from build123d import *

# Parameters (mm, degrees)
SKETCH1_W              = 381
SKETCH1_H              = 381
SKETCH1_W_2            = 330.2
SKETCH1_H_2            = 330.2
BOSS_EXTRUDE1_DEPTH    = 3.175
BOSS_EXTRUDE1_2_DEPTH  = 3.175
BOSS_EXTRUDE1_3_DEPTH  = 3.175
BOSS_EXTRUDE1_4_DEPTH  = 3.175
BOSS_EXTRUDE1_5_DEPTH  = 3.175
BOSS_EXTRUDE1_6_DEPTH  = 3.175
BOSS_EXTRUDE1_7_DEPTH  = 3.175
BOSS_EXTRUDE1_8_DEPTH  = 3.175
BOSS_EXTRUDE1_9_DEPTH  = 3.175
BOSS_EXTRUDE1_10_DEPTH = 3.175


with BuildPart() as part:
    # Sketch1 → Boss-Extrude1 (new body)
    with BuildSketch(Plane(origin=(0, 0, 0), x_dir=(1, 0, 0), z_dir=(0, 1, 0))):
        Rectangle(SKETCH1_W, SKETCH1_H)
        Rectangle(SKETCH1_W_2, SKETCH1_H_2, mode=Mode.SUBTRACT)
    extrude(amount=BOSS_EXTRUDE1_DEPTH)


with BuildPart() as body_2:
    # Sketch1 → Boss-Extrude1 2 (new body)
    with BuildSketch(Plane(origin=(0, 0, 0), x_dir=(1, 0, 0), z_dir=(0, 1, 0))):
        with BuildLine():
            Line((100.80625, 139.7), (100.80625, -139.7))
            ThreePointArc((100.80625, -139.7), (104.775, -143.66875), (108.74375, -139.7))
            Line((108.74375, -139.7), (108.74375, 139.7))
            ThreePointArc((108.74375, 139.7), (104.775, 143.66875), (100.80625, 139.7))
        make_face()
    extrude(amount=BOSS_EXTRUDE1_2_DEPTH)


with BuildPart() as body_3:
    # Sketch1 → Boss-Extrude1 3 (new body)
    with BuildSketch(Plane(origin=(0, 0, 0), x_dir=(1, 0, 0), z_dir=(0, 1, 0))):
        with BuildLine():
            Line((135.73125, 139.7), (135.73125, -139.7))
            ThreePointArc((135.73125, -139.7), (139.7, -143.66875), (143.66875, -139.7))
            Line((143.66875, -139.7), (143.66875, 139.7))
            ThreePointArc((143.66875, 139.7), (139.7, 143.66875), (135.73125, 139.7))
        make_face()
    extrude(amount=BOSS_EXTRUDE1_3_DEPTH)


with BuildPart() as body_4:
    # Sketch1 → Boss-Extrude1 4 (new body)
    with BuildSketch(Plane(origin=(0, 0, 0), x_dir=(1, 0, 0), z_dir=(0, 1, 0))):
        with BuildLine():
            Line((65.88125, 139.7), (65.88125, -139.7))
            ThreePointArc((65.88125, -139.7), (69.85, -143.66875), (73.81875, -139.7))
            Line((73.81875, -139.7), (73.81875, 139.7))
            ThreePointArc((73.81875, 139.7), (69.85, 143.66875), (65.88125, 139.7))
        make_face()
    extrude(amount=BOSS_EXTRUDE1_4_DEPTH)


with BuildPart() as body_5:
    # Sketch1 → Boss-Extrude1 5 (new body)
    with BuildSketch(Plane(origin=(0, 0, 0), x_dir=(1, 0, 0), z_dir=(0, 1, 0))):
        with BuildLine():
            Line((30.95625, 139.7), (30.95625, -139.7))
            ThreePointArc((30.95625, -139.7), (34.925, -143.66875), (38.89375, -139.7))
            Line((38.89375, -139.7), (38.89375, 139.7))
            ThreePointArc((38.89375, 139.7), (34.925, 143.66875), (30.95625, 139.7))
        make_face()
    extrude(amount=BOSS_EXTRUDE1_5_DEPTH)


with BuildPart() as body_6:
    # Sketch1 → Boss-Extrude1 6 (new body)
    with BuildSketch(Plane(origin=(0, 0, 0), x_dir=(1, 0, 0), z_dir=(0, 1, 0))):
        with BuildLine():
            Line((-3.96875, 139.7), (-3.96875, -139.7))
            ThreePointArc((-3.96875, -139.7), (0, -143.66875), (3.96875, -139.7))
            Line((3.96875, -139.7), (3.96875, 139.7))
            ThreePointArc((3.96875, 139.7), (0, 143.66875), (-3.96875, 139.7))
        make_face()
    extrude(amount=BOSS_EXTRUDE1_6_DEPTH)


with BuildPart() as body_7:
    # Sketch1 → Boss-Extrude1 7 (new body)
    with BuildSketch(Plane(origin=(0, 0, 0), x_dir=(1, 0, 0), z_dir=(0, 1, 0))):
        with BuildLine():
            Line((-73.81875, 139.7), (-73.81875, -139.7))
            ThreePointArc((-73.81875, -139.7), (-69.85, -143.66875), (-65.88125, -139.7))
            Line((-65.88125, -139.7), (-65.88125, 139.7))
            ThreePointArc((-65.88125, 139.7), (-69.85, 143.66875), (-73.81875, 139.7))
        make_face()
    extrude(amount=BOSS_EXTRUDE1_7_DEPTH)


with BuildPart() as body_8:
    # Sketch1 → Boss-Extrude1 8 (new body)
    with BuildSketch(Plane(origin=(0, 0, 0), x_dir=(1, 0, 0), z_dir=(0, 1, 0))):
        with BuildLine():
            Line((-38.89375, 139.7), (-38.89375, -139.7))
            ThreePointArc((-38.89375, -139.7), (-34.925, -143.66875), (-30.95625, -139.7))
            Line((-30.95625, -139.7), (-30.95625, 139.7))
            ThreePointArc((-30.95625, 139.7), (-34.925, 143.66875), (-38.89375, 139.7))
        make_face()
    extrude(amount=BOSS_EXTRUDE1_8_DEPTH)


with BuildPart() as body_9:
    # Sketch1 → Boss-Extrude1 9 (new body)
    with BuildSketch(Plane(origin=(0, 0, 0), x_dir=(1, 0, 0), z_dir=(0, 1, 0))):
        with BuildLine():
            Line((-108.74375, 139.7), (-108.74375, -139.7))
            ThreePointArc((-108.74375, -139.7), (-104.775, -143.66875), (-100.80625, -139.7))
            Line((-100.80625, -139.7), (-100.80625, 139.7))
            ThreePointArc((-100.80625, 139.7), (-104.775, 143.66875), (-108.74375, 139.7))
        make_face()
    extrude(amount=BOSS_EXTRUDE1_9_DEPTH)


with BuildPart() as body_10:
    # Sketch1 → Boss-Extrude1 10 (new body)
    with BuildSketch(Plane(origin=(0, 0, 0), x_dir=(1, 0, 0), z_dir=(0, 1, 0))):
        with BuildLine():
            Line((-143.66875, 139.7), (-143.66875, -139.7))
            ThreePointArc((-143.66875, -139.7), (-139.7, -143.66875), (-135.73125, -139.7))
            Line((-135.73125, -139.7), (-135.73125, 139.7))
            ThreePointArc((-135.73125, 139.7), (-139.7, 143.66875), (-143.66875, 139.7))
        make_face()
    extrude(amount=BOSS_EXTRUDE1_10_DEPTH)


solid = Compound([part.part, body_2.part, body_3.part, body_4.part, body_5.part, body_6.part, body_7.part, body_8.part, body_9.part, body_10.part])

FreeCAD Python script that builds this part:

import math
import FreeCAD as App
import Part
import Sketcher
Q = App.Units.Quantity

doc = App.newDocument("Part")
body = doc.addObject("PartDesign::Body", "Body")

sketch1 = body.newObject("Sketcher::SketchObject", "Sketch")
sketch1.AttachmentSupport = (doc.getObject("XZ_Plane"), [""])
sketch1.MapMode = "FlatFace"
sketch1.addGeometry(Part.LineSegment(App.Vector(-190, -190, 0), App.Vector(-190, 190, 0)), False)
sketch1.addGeometry(Part.LineSegment(App.Vector(-190, 190, 0), App.Vector(190, 190, 0)), False)
sketch1.addGeometry(Part.LineSegment(App.Vector(190, 190, 0), App.Vector(190, -190, 0)), False)
sketch1.addGeometry(Part.LineSegment(App.Vector(190, -190, 0), App.Vector(-190, -190, 0)), False)
sketch1.addGeometry(Part.LineSegment(App.Vector(165, 165, 0), App.Vector(-165, 165, 0)), False)
sketch1.addGeometry(Part.LineSegment(App.Vector(-165, 165, 0), App.Vector(-165, -165, 0)), False)
sketch1.addGeometry(Part.LineSegment(App.Vector(-165, -165, 0), App.Vector(165, -165, 0)), False)
sketch1.addGeometry(Part.LineSegment(App.Vector(165, -165, 0), App.Vector(165, 165, 0)), False)
sketch1.addConstraint(Sketcher.Constraint("Coincident", 0, 2, 1, 1))
sketch1.addConstraint(Sketcher.Constraint("Coincident", 1, 2, 2, 1))
sketch1.addConstraint(Sketcher.Constraint("Coincident", 2, 2, 3, 1))
sketch1.addConstraint(Sketcher.Constraint("Coincident", 3, 2, 0, 1))
sketch1.addConstraint(Sketcher.Constraint("Coincident", 4, 2, 5, 1))
sketch1.addConstraint(Sketcher.Constraint("Coincident", 5, 2, 6, 1))
sketch1.addConstraint(Sketcher.Constraint("Coincident", 6, 2, 7, 1))
sketch1.addConstraint(Sketcher.Constraint("Coincident", 7, 2, 4, 1))
sketch1.addConstraint(Sketcher.Constraint("Vertical", 0))
sketch1.addConstraint(Sketcher.Constraint("Horizontal", 1))
sketch1.addConstraint(Sketcher.Constraint("Vertical", 2))
sketch1.addConstraint(Sketcher.Constraint("Horizontal", 3))
sketch1.addConstraint(Sketcher.Constraint("Horizontal", 4))
sketch1.addConstraint(Sketcher.Constraint("Vertical", 5))
sketch1.addConstraint(Sketcher.Constraint("Horizontal", 6))
sketch1.addConstraint(Sketcher.Constraint("Vertical", 7))
sketch1.addConstraint(Sketcher.Constraint("Symmetric", 0, 2, 2, 2, -1, 1))
sketch1.addConstraint(Sketcher.Constraint("Symmetric", 4, 2, 6, 2, -1, 1))
sketch1.addConstraint(Sketcher.Constraint("Equal", 3, 0))
sketch1.addConstraint(Sketcher.Constraint("Equal", 6, 5))
sketch1.addConstraint(Sketcher.Constraint("DistanceX", 1, 1, 1, 2, Q("15 in")))
sketch1.addConstraint(Sketcher.Constraint("DistanceX", 4, 2, 4, 1, Q("13 in")))
pad1 = body.newObject("PartDesign::Pad", "Pad")
pad1.Profile = sketch1
pad1.Length = Q("0.125 in")
pad1.Reversed = True
body2 = doc.addObject("PartDesign::Body", "Body001")

sketch2 = body2.newObject("Sketcher::SketchObject", "Sketch001")
sketch2.AttachmentSupport = (doc.getObject("XZ_Plane001"), [""])
sketch2.MapMode = "FlatFace"
sketch2.addGeometry(Part.LineSegment(App.Vector(100.8, -139.7, 0), App.Vector(100.8, 139.7, 0)), False)
sketch2.addGeometry(Part.ArcOfCircle(Part.Circle(App.Vector(104.8, 139.7, 0), App.Vector(0, 0, 1), 4), math.radians(0), math.radians(180)), False)
sketch2.addGeometry(Part.LineSegment(App.Vector(108.7, 139.7, 0), App.Vector(108.7, -139.7, 0)), False)
sketch2.addGeometry(Part.ArcOfCircle(Part.Circle(App.Vector(104.8, -139.7, 0), App.Vector(0, 0, 1), 4), math.radians(180), math.radians(360)), False)
sketch2.addConstraint(Sketcher.Constraint("Tangent", 0, 2, 1, 2))
sketch2.addConstraint(Sketcher.Constraint("Tangent", 1, 1, 2, 1))
sketch2.addConstraint(Sketcher.Constraint("Tangent", 2, 2, 3, 2))
sketch2.addConstraint(Sketcher.Constraint("Tangent", 3, 1, 0, 1))
sketch2.addConstraint(Sketcher.Constraint("Vertical", 0))
sketch2.addConstraint(Sketcher.Constraint("Vertical", 2))
sketch2.addConstraint(Sketcher.Constraint("DistanceY", 0, 1, 0, 2, Q("11 in")))
sketch2.addConstraint(Sketcher.Constraint("Radius", 1, Q("0.15625 in")))
sketch2.addConstraint(Sketcher.Constraint("DistanceY", -1, 1, 1, 3, Q("5.5 in")))
sketch2.addConstraint(Sketcher.Constraint("DistanceX", -1, 1, 1, 3, Q("4.125 in")))
pad2 = body2.newObject("PartDesign::Pad", "Pad001")
pad2.Profile = sketch2
pad2.Length = Q("0.125 in")
pad2.Reversed = True
body3 = doc.addObject("PartDesign::Body", "Body002")

sketch3 = body3.newObject("Sketcher::SketchObject", "Sketch002")
sketch3.AttachmentSupport = (doc.getObject("XZ_Plane002"), [""])
sketch3.MapMode = "FlatFace"
sketch3.addGeometry(Part.LineSegment(App.Vector(135.7, -139.7, 0), App.Vector(135.7, 139.7, 0)), False)
sketch3.addGeometry(Part.ArcOfCircle(Part.Circle(App.Vector(139.7, 139.7, 0), App.Vector(0, 0, 1), 4), math.radians(0), math.radians(180)), False)
sketch3.addGeometry(Part.LineSegment(App.Vector(143.7, 139.7, 0), App.Vector(143.7, -139.7, 0)), False)
sketch3.addGeometry(Part.ArcOfCircle(Part.Circle(App.Vector(139.7, -139.7, 0), App.Vector(0, 0, 1), 4), math.radians(180), math.radians(360)), False)
sketch3.addConstraint(Sketcher.Constraint("Tangent", 0, 2, 1, 2))
sketch3.addConstraint(Sketcher.Constraint("Tangent", 1, 1, 2, 1))
sketch3.addConstraint(Sketcher.Constraint("Tangent", 2, 2, 3, 2))
sketch3.addConstraint(Sketcher.Constraint("Tangent", 3, 1, 0, 1))
sketch3.addConstraint(Sketcher.Constraint("Vertical", 0))
sketch3.addConstraint(Sketcher.Constraint("Vertical", 2))
sketch3.addConstraint(Sketcher.Constraint("DistanceY", 0, 1, 0, 2, Q("11 in")))
sketch3.addConstraint(Sketcher.Constraint("Radius", 1, Q("0.15625 in")))
sketch3.addConstraint(Sketcher.Constraint("DistanceX", -1, 1, 1, 3, Q("5.5 in")))
sketch3.addConstraint(Sketcher.Constraint("DistanceY", -1, 1, 1, 3, Q("5.5 in")))
pad3 = body3.newObject("PartDesign::Pad", "Pad002")
pad3.Profile = sketch3
pad3.Length = Q("0.125 in")
pad3.Reversed = True
body4 = doc.addObject("PartDesign::Body", "Body003")

sketch4 = body4.newObject("Sketcher::SketchObject", "Sketch003")
sketch4.AttachmentSupport = (doc.getObject("XZ_Plane003"), [""])
sketch4.MapMode = "FlatFace"
sketch4.addGeometry(Part.LineSegment(App.Vector(65.9, -139.7, 0), App.Vector(65.9, 139.7, 0)), False)
sketch4.addGeometry(Part.ArcOfCircle(Part.Circle(App.Vector(69.8, 139.7, 0), App.Vector(0, 0, 1), 4), math.radians(0), math.radians(180)), False)
sketch4.addGeometry(Part.LineSegment(App.Vector(73.8, 139.7, 0), App.Vector(73.8, -139.7, 0)), False)
sketch4.addGeometry(Part.ArcOfCircle(Part.Circle(App.Vector(69.8, -139.7, 0), App.Vector(0, 0, 1), 4), math.radians(180), math.radians(360)), False)
sketch4.addConstraint(Sketcher.Constraint("Tangent", 0, 2, 1, 2))
sketch4.addConstraint(Sketcher.Constraint("Tangent", 1, 1, 2, 1))
sketch4.addConstraint(Sketcher.Constraint("Tangent", 2, 2, 3, 2))
sketch4.addConstraint(Sketcher.Constraint("Tangent", 3, 1, 0, 1))
sketch4.addConstraint(Sketcher.Constraint("Vertical", 0))
sketch4.addConstraint(Sketcher.Constraint("Vertical", 2))
sketch4.addConstraint(Sketcher.Constraint("DistanceY", 0, 1, 0, 2, Q("11 in")))
sketch4.addConstraint(Sketcher.Constraint("Radius", 1, Q("0.15625 in")))
sketch4.addConstraint(Sketcher.Constraint("DistanceY", -1, 1, 1, 3, Q("5.5 in")))
sketch4.addConstraint(Sketcher.Constraint("DistanceX", -1, 1, 1, 3, Q("2.75 in")))
pad4 = body4.newObject("PartDesign::Pad", "Pad003")
pad4.Profile = sketch4
pad4.Length = Q("0.125 in")
pad4.Reversed = True
body5 = doc.addObject("PartDesign::Body", "Body004")

sketch5 = body5.newObject("Sketcher::SketchObject", "Sketch004")
sketch5.AttachmentSupport = (doc.getObject("XZ_Plane004"), [""])
sketch5.MapMode = "FlatFace"
sketch5.addGeometry(Part.LineSegment(App.Vector(31, -139.7, 0), App.Vector(31, 139.7, 0)), False)
sketch5.addGeometry(Part.ArcOfCircle(Part.Circle(App.Vector(34.9, 139.7, 0), App.Vector(0, 0, 1), 4), math.radians(0), math.radians(180)), False)
sketch5.addGeometry(Part.LineSegment(App.Vector(38.9, 139.7, 0), App.Vector(38.9, -139.7, 0)), False)
sketch5.addGeometry(Part.ArcOfCircle(Part.Circle(App.Vector(34.9, -139.7, 0), App.Vector(0, 0, 1), 4), math.radians(180), math.radians(360)), False)
sketch5.addConstraint(Sketcher.Constraint("Tangent", 0, 2, 1, 2))
sketch5.addConstraint(Sketcher.Constraint("Tangent", 1, 1, 2, 1))
sketch5.addConstraint(Sketcher.Constraint("Tangent", 2, 2, 3, 2))
sketch5.addConstraint(Sketcher.Constraint("Tangent", 3, 1, 0, 1))
sketch5.addConstraint(Sketcher.Constraint("Vertical", 0))
sketch5.addConstraint(Sketcher.Constraint("Vertical", 2))
sketch5.addConstraint(Sketcher.Constraint("DistanceY", 0, 1, 0, 2, Q("11 in")))
sketch5.addConstraint(Sketcher.Constraint("Radius", 1, Q("0.15625 in")))
sketch5.addConstraint(Sketcher.Constraint("DistanceY", -1, 1, 1, 3, Q("5.5 in")))
sketch5.addConstraint(Sketcher.Constraint("DistanceX", -1, 1, 1, 3, Q("1.375 in")))
pad5 = body5.newObject("PartDesign::Pad", "Pad004")
pad5.Profile = sketch5
pad5.Length = Q("0.125 in")
pad5.Reversed = True
body6 = doc.addObject("PartDesign::Body", "Body005")

sketch6 = body6.newObject("Sketcher::SketchObject", "Sketch005")
sketch6.AttachmentSupport = (doc.getObject("XZ_Plane005"), [""])
sketch6.MapMode = "FlatFace"
sketch6.addGeometry(Part.LineSegment(App.Vector(-4, -139.7, 0), App.Vector(-4, 139.7, 0)), False)
sketch6.addGeometry(Part.ArcOfCircle(Part.Circle(App.Vector(0, 139.7, 0), App.Vector(0, 0, 1), 4), math.radians(0), math.radians(180)), False)
sketch6.addGeometry(Part.LineSegment(App.Vector(4, 139.7, 0), App.Vector(4, -139.7, 0)), False)
sketch6.addGeometry(Part.ArcOfCircle(Part.Circle(App.Vector(0, -139.7, 0), App.Vector(0, 0, 1), 4), math.radians(180), math.radians(360)), False)
sketch6.addConstraint(Sketcher.Constraint("Tangent", 0, 2, 1, 2))
sketch6.addConstraint(Sketcher.Constraint("Tangent", 1, 1, 2, 1))
sketch6.addConstraint(Sketcher.Constraint("Tangent", 2, 2, 3, 2))
sketch6.addConstraint(Sketcher.Constraint("Tangent", 3, 1, 0, 1))
sketch6.addConstraint(Sketcher.Constraint("Vertical", 0))
sketch6.addConstraint(Sketcher.Constraint("Vertical", 2))
sketch6.addConstraint(Sketcher.Constraint("Symmetric", 1, 3, 3, 3, -1, 1))
sketch6.addConstraint(Sketcher.Constraint("DistanceY", 0, 1, 0, 2, Q("11 in")))
sketch6.addConstraint(Sketcher.Constraint("Radius", 1, Q("0.15625 in")))
pad6 = body6.newObject("PartDesign::Pad", "Pad005")
pad6.Profile = sketch6
pad6.Length = Q("0.125 in")
pad6.Reversed = True
body7 = doc.addObject("PartDesign::Body", "Body006")

sketch7 = body7.newObject("Sketcher::SketchObject", "Sketch006")
sketch7.AttachmentSupport = (doc.getObject("XZ_Plane006"), [""])
sketch7.MapMode = "FlatFace"
sketch7.addGeometry(Part.LineSegment(App.Vector(-73.8, -139.7, 0), App.Vector(-73.8, 139.7, 0)), False)
sketch7.addGeometry(Part.ArcOfCircle(Part.Circle(App.Vector(-69.8, 139.7, 0), App.Vector(0, 0, 1), 4), math.radians(0), math.radians(180)), False)
sketch7.addGeometry(Part.LineSegment(App.Vector(-65.9, 139.7, 0), App.Vector(-65.9, -139.7, 0)), False)
sketch7.addGeometry(Part.ArcOfCircle(Part.Circle(App.Vector(-69.8, -139.7, 0), App.Vector(0, 0, 1), 4), math.radians(180), math.radians(360)), False)
sketch7.addConstraint(Sketcher.Constraint("Tangent", 0, 2, 1, 2))
sketch7.addConstraint(Sketcher.Constraint("Tangent", 1, 1, 2, 1))
sketch7.addConstraint(Sketcher.Constraint("Tangent", 2, 2, 3, 2))
sketch7.addConstraint(Sketcher.Constraint("Tangent", 3, 1, 0, 1))
sketch7.addConstraint(Sketcher.Constraint("Vertical", 0))
sketch7.addConstraint(Sketcher.Constraint("Vertical", 2))
sketch7.addConstraint(Sketcher.Constraint("DistanceY", 0, 1, 0, 2, Q("11 in")))
sketch7.addConstraint(Sketcher.Constraint("Radius", 1, Q("0.15625 in")))
sketch7.addConstraint(Sketcher.Constraint("DistanceY", -1, 1, 1, 3, Q("5.5 in")))
sketch7.addConstraint(Sketcher.Constraint("DistanceX", 1, 3, -1, 1, Q("2.75 in")))
pad7 = body7.newObject("PartDesign::Pad", "Pad006")
pad7.Profile = sketch7
pad7.Length = Q("0.125 in")
pad7.Reversed = True
body8 = doc.addObject("PartDesign::Body", "Body007")

sketch8 = body8.newObject("Sketcher::SketchObject", "Sketch007")
sketch8.AttachmentSupport = (doc.getObject("XZ_Plane007"), [""])
sketch8.MapMode = "FlatFace"
sketch8.addGeometry(Part.LineSegment(App.Vector(-38.9, -139.7, 0), App.Vector(-38.9, 139.7, 0)), False)
sketch8.addGeometry(Part.ArcOfCircle(Part.Circle(App.Vector(-34.9, 139.7, 0), App.Vector(0, 0, 1), 4), math.radians(0), math.radians(180)), False)
sketch8.addGeometry(Part.LineSegment(App.Vector(-31, 139.7, 0), App.Vector(-31, -139.7, 0)), False)
sketch8.addGeometry(Part.ArcOfCircle(Part.Circle(App.Vector(-34.9, -139.7, 0), App.Vector(0, 0, 1), 4), math.radians(180), math.radians(360)), False)
sketch8.addConstraint(Sketcher.Constraint("Tangent", 0, 2, 1, 2))
sketch8.addConstraint(Sketcher.Constraint("Tangent", 1, 1, 2, 1))
sketch8.addConstraint(Sketcher.Constraint("Tangent", 2, 2, 3, 2))
sketch8.addConstraint(Sketcher.Constraint("Tangent", 3, 1, 0, 1))
sketch8.addConstraint(Sketcher.Constraint("Vertical", 0))
sketch8.addConstraint(Sketcher.Constraint("Vertical", 2))
sketch8.addConstraint(Sketcher.Constraint("DistanceY", 0, 1, 0, 2, Q("11 in")))
sketch8.addConstraint(Sketcher.Constraint("Radius", 1, Q("0.15625 in")))
sketch8.addConstraint(Sketcher.Constraint("DistanceY", -1, 1, 1, 3, Q("5.5 in")))
sketch8.addConstraint(Sketcher.Constraint("DistanceX", 1, 3, -1, 1, Q("1.375 in")))
pad8 = body8.newObject("PartDesign::Pad", "Pad007")
pad8.Profile = sketch8
pad8.Length = Q("0.125 in")
pad8.Reversed = True
body9 = doc.addObject("PartDesign::Body", "Body008")

sketch9 = body9.newObject("Sketcher::SketchObject", "Sketch008")
sketch9.AttachmentSupport = (doc.getObject("XZ_Plane008"), [""])
sketch9.MapMode = "FlatFace"
sketch9.addGeometry(Part.LineSegment(App.Vector(-108.7, -139.7, 0), App.Vector(-108.7, 139.7, 0)), False)
sketch9.addGeometry(Part.ArcOfCircle(Part.Circle(App.Vector(-104.8, 139.7, 0), App.Vector(0, 0, 1), 4), math.radians(0), math.radians(180)), False)
sketch9.addGeometry(Part.LineSegment(App.Vector(-100.8, 139.7, 0), App.Vector(-100.8, -139.7, 0)), False)
sketch9.addGeometry(Part.ArcOfCircle(Part.Circle(App.Vector(-104.8, -139.7, 0), App.Vector(0, 0, 1), 4), math.radians(180), math.radians(360)), False)
sketch9.addConstraint(Sketcher.Constraint("Tangent", 0, 2, 1, 2))
sketch9.addConstraint(Sketcher.Constraint("Tangent", 1, 1, 2, 1))
sketch9.addConstraint(Sketcher.Constraint("Tangent", 2, 2, 3, 2))
sketch9.addConstraint(Sketcher.Constraint("Tangent", 3, 1, 0, 1))
sketch9.addConstraint(Sketcher.Constraint("Vertical", 0))
sketch9.addConstraint(Sketcher.Constraint("Vertical", 2))
sketch9.addConstraint(Sketcher.Constraint("DistanceY", 0, 1, 0, 2, Q("11 in")))
sketch9.addConstraint(Sketcher.Constraint("Radius", 1, Q("0.15625 in")))
sketch9.addConstraint(Sketcher.Constraint("DistanceY", -1, 1, 1, 3, Q("5.5 in")))
sketch9.addConstraint(Sketcher.Constraint("DistanceX", 1, 3, -1, 1, Q("4.125 in")))
pad9 = body9.newObject("PartDesign::Pad", "Pad008")
pad9.Profile = sketch9
pad9.Length = Q("0.125 in")
pad9.Reversed = True
body10 = doc.addObject("PartDesign::Body", "Body009")

sketch10 = body10.newObject("Sketcher::SketchObject", "Sketch009")
sketch10.AttachmentSupport = (doc.getObject("XZ_Plane009"), [""])
sketch10.MapMode = "FlatFace"
sketch10.addGeometry(Part.LineSegment(App.Vector(-143.7, -139.7, 0), App.Vector(-143.7, 139.7, 0)), False)
sketch10.addGeometry(Part.ArcOfCircle(Part.Circle(App.Vector(-139.7, 139.7, 0), App.Vector(0, 0, 1), 4), math.radians(0), math.radians(180)), False)
sketch10.addGeometry(Part.LineSegment(App.Vector(-135.7, 139.7, 0), App.Vector(-135.7, -139.7, 0)), False)
sketch10.addGeometry(Part.ArcOfCircle(Part.Circle(App.Vector(-139.7, -139.7, 0), App.Vector(0, 0, 1), 4), math.radians(180), math.radians(360)), False)
sketch10.addConstraint(Sketcher.Constraint("Tangent", 0, 2, 1, 2))
sketch10.addConstraint(Sketcher.Constraint("Tangent", 1, 1, 2, 1))
sketch10.addConstraint(Sketcher.Constraint("Tangent", 2, 2, 3, 2))
sketch10.addConstraint(Sketcher.Constraint("Tangent", 3, 1, 0, 1))
sketch10.addConstraint(Sketcher.Constraint("Vertical", 0))
sketch10.addConstraint(Sketcher.Constraint("Vertical", 2))
sketch10.addConstraint(Sketcher.Constraint("DistanceY", 0, 1, 0, 2, Q("11 in")))
sketch10.addConstraint(Sketcher.Constraint("Radius", 1, Q("0.15625 in")))
sketch10.addConstraint(Sketcher.Constraint("DistanceX", 1, 3, -1, 1, Q("5.5 in")))
sketch10.addConstraint(Sketcher.Constraint("DistanceY", -1, 1, 1, 3, Q("5.5 in")))
pad10 = body10.newObject("PartDesign::Pad", "Pad009")
pad10.Profile = sketch10
pad10.Length = Q("0.125 in")
pad10.Reversed = True

doc.recompute()
